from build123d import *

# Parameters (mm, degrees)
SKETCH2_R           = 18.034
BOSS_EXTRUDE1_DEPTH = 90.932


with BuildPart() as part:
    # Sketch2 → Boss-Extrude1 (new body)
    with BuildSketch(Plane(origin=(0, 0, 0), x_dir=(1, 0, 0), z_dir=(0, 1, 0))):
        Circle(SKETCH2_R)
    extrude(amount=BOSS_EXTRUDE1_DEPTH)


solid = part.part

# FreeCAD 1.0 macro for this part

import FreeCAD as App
import Part
import Sketcher

V = App.Vector
Q = App.Units.Quantity

doc = App.newDocument("Part")
body = doc.addObject("PartDesign::Body", "Body")

# Sketch on XZ plane
sketch1 = doc.addObject("Sketcher::SketchObject", "Sketch")
body.addObject(sketch1)
sketch1.AttachmentSupport = (doc.XZ_Plane, [""])
sketch1.MapMode = "FlatFace"
sketch1.addGeometry(Part.Circle(V(0, 0, 0), V(0, 0, 1), 18), False)
sketch1.addConstraint([
    Sketcher.Constraint("Coincident", 0, 3, -1, 1),
    Sketcher.Constraint("Diameter", 0, Q("1.42 in")),
])
pad1 = doc.addObject("PartDesign::Pad", "Pad")
body.addObject(pad1)
pad1.Profile = sketch1
pad1.Length = Q("3.58 in")
pad1.Reversed = True

doc.recompute()
